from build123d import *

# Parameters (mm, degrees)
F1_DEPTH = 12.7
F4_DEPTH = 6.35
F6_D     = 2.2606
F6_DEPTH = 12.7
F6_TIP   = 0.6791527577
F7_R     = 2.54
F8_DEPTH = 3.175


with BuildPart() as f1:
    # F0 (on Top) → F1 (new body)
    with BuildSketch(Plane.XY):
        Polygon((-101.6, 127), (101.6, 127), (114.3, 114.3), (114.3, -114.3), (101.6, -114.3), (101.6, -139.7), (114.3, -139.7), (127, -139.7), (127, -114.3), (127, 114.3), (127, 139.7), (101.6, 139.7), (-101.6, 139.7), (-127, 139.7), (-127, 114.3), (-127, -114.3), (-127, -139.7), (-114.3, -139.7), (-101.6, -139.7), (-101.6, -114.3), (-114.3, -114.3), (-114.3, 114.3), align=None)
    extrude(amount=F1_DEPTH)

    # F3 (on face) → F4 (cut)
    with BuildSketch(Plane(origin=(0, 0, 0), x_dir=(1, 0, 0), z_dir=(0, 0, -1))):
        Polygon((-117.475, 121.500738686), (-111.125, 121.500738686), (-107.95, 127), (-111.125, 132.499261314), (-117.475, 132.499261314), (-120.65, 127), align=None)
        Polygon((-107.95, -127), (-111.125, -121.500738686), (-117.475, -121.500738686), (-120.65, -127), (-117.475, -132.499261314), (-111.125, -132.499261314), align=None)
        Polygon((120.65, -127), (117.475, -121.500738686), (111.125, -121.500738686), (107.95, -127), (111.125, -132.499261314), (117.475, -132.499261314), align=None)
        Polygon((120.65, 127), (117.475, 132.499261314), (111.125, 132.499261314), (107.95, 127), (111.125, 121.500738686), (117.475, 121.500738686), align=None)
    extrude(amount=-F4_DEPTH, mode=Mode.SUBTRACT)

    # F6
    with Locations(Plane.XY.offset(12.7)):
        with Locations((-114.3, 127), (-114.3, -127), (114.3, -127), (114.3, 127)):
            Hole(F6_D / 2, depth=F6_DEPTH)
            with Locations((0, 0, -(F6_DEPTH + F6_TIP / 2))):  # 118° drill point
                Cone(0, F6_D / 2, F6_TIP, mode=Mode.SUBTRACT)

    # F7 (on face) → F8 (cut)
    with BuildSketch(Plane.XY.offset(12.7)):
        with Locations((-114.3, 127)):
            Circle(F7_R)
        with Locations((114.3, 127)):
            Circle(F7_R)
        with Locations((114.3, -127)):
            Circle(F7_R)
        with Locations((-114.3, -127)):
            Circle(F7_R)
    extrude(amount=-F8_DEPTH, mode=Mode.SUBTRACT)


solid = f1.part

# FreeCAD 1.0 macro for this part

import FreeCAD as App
import Part
import Sketcher

V = App.Vector
Q = App.Units.Quantity


def add_polygon(sketch, points):
    """Adds a closed chain of lines whose ends are joined by coincident constraints."""
    first, n = sketch.GeometryCount, len(points)
    for a, b in zip(points, points[1:] + points[:1]):
        sketch.addGeometry(Part.LineSegment(App.Vector(*a, 0), App.Vector(*b, 0)), False)
    for i in range(n):
        sketch.addConstraint(Sketcher.Constraint("Coincident", first + i, 2, first + (i + 1) % n, 1))

doc = App.newDocument("Part")
body = doc.addObject("PartDesign::Body", "Body")

# Sketch on XY plane
sketch1 = body.newObject("Sketcher::SketchObject", "Sketch")
sketch1.AttachmentSupport = (doc.getObject("XY_Plane"), [""])
sketch1.MapMode = "FlatFace"
add_polygon(sketch1, [(-102, 127), (102, 127), (114, 114), (114, -114), (102, -114), (102, -140), (127, -140), (127, 140), (-127, 140), (-127, -140), (-102, -140), (-102, -114), (-114, -114), (-114, 114)])  # lines 0-13
sketch1.addConstraint([
    Sketcher.Constraint("Horizontal", 0),
    Sketcher.Constraint("Vertical", 2),
    Sketcher.Constraint("Horizontal", 3),
    Sketcher.Constraint("Vertical", 4),
    Sketcher.Constraint("Horizontal", 5),
    Sketcher.Constraint("Vertical", 6),
    Sketcher.Constraint("Horizontal", 7),
    Sketcher.Constraint("Vertical", 8),
    Sketcher.Constraint("Horizontal", 9),
    Sketcher.Constraint("Vertical", 10),
    Sketcher.Constraint("Horizontal", 11),
    Sketcher.Constraint("Vertical", 12),
    Sketcher.Constraint("Symmetric", 5, 2, 7, 2, -1, 1),
    Sketcher.Constraint("Symmetric", 1, 2, 11, 2, -1, 1),
    Sketcher.Constraint("Symmetric", 4, 2, 9, 2, -2),
    Sketcher.Constraint("Perpendicular", 1, 13),
    Sketcher.Constraint("Horizontal", 3, 2, 10, 2),
    Sketcher.Constraint("Horizontal", 1, 2, 12, 2),
    Sketcher.Constraint("Vertical", 0, 2, 3, 2),
    Sketcher.Constraint("Vertical", 10, 2, 13, 2),
    Sketcher.Constraint("Equal", 9, 4),
    Sketcher.Constraint("DistanceX", 0, 1, 0, 2, Q("8 in")),
    Sketcher.Constraint("DistanceX", 5, 1, 5, 2, Q("1 in")),
    Sketcher.Constraint("DistanceY", 2, 2, 2, 1, Q("9 in")),
    Sketcher.Constraint("DistanceX", 3, 2, 3, 1, Q("0.5 in")),
])
pad1 = body.newObject("PartDesign::Pad", "Pad")
pad1.Profile = sketch1
pad1.Length = Q("0.5 in")

# Sketch on XY plane
sketch2 = body.newObject("Sketcher::SketchObject", "Sketch001")
sketch2.AttachmentSupport = (doc.getObject("XY_Plane"), [""])
sketch2.MapMode = "FlatFace"
add_polygon(sketch2, [(-117, -122), (-111, -122), (-108, -127), (-111, -132), (-117, -132), (-121, -127)])  # lines 0-5
add_polygon(sketch2, [(-108, 127), (-111, 122), (-117, 122), (-121, 127), (-117, 132), (-111, 132)])  # lines 6-11
add_polygon(sketch2, [(121, 127), (117, 122), (111, 122), (108, 127), (111, 132), (117, 132)])  # lines 12-17
add_polygon(sketch2, [(121, -127), (117, -132), (111, -132), (108, -127), (111, -122), (117, -122)])  # lines 18-23
sketch2.addConstraint([
    Sketcher.Constraint("Horizontal", 0),
    Sketcher.Constraint("Horizontal", 3),
    Sketcher.Constraint("Horizontal", 7),
    Sketcher.Constraint("Horizontal", 10),
    Sketcher.Constraint("Horizontal", 13),
    Sketcher.Constraint("Horizontal", 16),
    Sketcher.Constraint("Horizontal", 19),
    Sketcher.Constraint("Horizontal", 22),
    Sketcher.Constraint("Symmetric", 5, 2, 12, 2, -1, 1),
    Sketcher.Constraint("Symmetric", 1, 2, 14, 2, -1, 1),
    Sketcher.Constraint("Symmetric", 2, 2, 15, 2, -1, 1),
    Sketcher.Constraint("Symmetric", 4, 2, 17, 2, -1, 1),
    Sketcher.Constraint("Symmetric", 9, 2, 18, 2, -1, 1),
    Sketcher.Constraint("Symmetric", 11, 2, 20, 2, -1, 1),
    Sketcher.Constraint("Symmetric", 6, 2, 21, 2, -1, 1),
    Sketcher.Constraint("Symmetric", 8, 2, 23, 2, -1, 1),
    Sketcher.Constraint("Symmetric", 7, 2, 12, 2, -2),
    Sketcher.Constraint("Symmetric", 11, 2, 14, 2, -2),
    Sketcher.Constraint("Symmetric", 10, 2, 15, 2, -2),
    Sketcher.Constraint("Symmetric", 8, 2, 17, 2, -2),
    Sketcher.Constraint("Parallel", 1, 4),
    Sketcher.Constraint("Parallel", 2, 5),
    Sketcher.Constraint("Parallel", 5, 6),
    Sketcher.Constraint("Parallel", 4, 8),
    Sketcher.Constraint("Parallel", 6, 9),
    Sketcher.Constraint("Parallel", 11, 14),
    Sketcher.Constraint("Parallel", 14, 17),
    Sketcher.Constraint("Parallel", 17, 20),
    Sketcher.Constraint("Parallel", 20, 23),
    Sketcher.Constraint("Horizontal", 1, 2, 4, 2),
    Sketcher.Constraint("Vertical", 0, 2, 2, 2),
    Sketcher.Constraint("DistanceY", 1, 2, -1, 1, Q("5 in")),
    Sketcher.Constraint("Angle", 1, Q("-60 deg")),
    Sketcher.Constraint("DistanceX", 6, 2, 12, 2, Q("9 in")),
    Sketcher.Constraint("DistanceX", 0, 1, 0, 2, Q("0.25 in")),
    Sketcher.Constraint("DistanceX", 4, 2, 1, 2, Q("0.5 in")),
])
pocket1 = body.newObject("PartDesign::Pocket", "Pocket")
pocket1.Profile = sketch2
pocket1.Length = Q("0.25 in")
pocket1.Reversed = True

# Sketch on XY plane
sketch3 = body.newObject("Sketcher::SketchObject", "Sketch002")
sketch3.AttachmentSupport = (doc.getObject("XY_Plane"), [""])
sketch3.MapMode = "FlatFace"
sketch3.AttachmentOffset = App.Placement(V(0, 0, 0.5 * 25.4), App.Rotation())
sketch3.addGeometry([
    Part.Circle(V(-114.3, 127, 0), V(0, 0, 1), 1.1),
    Part.Circle(V(-114.3, -127, 0), V(0, 0, 1), 1.1),
    Part.Circle(V(114.3, -127, 0), V(0, 0, 1), 1.1),
    Part.Circle(V(114.3, 127, 0), V(0, 0, 1), 1.1),
], False)
sketch3.addConstraint([
    Sketcher.Constraint("Equal", 0, 1),
    Sketcher.Constraint("Equal", 1, 2),
    Sketcher.Constraint("Equal", 2, 3),
    Sketcher.Constraint("Symmetric", 0, 3, 2, 3, -1, 1),
    Sketcher.Constraint("Symmetric", 1, 3, 3, 3, -1, 1),
    Sketcher.Constraint("Symmetric", 1, 3, 2, 3, -2),
    Sketcher.Constraint("Diameter", 0, Q("0.089 in")),
    Sketcher.Constraint("DistanceY", -1, 1, 0, 3, Q("5 in")),
    Sketcher.Constraint("DistanceX", 1, 3, 2, 3, Q("9 in")),
])
doc.recompute()
hole = body.newObject("PartDesign::Hole", "Hole")
hole.Profile = sketch3
hole.ThreadType = "None"
hole.Diameter = Q("0.089 in")
hole.DepthType = "Dimension"
hole.Depth = Q("0.5 in")
hole.DrillPoint = "Angled"
hole.DrillPointAngle = 118

# Sketch on XY plane
sketch4 = body.newObject("Sketcher::SketchObject", "Sketch003")
sketch4.AttachmentSupport = (doc.getObject("XY_Plane"), [""])
sketch4.MapMode = "FlatFace"
sketch4.AttachmentOffset = App.Placement(V(0, 0, 0.5 * 25.4), App.Rotation())
sketch4.addGeometry([
    Part.Circle(V(-114.3, 127, 0), V(0, 0, 1), 2.5),
    Part.Circle(V(114.3, 127, 0), V(0, 0, 1), 2.5),
    Part.Circle(V(114.3, -127, 0), V(0, 0, 1), 2.5),
    Part.Circle(V(-114.3, -127, 0), V(0, 0, 1), 2.5),
], False)
sketch4.addConstraint([
    Sketcher.Constraint("Equal", 0, 1),
    Sketcher.Constraint("Equal", 1, 2),
    Sketcher.Constraint("Equal", 2, 3),
    Sketcher.Constraint("Symmetric", 0, 3, 2, 3, -1, 1),
    Sketcher.Constraint("Symmetric", 1, 3, 3, 3, -1, 1),
    Sketcher.Constraint("Symmetric", 0, 3, 1, 3, -2),
    Sketcher.Constraint("Diameter", 0, Q("0.2 in")),
    Sketcher.Constraint("DistanceY", -1, 1, 0, 3, Q("5 in")),
    Sketcher.Constraint("DistanceX", 0, 3, 1, 3, Q("9 in")),
])
pocket2 = body.newObject("PartDesign::Pocket", "Pocket001")
pocket2.Profile = sketch4
pocket2.Length = Q("0.125 in")

doc.recompute()
